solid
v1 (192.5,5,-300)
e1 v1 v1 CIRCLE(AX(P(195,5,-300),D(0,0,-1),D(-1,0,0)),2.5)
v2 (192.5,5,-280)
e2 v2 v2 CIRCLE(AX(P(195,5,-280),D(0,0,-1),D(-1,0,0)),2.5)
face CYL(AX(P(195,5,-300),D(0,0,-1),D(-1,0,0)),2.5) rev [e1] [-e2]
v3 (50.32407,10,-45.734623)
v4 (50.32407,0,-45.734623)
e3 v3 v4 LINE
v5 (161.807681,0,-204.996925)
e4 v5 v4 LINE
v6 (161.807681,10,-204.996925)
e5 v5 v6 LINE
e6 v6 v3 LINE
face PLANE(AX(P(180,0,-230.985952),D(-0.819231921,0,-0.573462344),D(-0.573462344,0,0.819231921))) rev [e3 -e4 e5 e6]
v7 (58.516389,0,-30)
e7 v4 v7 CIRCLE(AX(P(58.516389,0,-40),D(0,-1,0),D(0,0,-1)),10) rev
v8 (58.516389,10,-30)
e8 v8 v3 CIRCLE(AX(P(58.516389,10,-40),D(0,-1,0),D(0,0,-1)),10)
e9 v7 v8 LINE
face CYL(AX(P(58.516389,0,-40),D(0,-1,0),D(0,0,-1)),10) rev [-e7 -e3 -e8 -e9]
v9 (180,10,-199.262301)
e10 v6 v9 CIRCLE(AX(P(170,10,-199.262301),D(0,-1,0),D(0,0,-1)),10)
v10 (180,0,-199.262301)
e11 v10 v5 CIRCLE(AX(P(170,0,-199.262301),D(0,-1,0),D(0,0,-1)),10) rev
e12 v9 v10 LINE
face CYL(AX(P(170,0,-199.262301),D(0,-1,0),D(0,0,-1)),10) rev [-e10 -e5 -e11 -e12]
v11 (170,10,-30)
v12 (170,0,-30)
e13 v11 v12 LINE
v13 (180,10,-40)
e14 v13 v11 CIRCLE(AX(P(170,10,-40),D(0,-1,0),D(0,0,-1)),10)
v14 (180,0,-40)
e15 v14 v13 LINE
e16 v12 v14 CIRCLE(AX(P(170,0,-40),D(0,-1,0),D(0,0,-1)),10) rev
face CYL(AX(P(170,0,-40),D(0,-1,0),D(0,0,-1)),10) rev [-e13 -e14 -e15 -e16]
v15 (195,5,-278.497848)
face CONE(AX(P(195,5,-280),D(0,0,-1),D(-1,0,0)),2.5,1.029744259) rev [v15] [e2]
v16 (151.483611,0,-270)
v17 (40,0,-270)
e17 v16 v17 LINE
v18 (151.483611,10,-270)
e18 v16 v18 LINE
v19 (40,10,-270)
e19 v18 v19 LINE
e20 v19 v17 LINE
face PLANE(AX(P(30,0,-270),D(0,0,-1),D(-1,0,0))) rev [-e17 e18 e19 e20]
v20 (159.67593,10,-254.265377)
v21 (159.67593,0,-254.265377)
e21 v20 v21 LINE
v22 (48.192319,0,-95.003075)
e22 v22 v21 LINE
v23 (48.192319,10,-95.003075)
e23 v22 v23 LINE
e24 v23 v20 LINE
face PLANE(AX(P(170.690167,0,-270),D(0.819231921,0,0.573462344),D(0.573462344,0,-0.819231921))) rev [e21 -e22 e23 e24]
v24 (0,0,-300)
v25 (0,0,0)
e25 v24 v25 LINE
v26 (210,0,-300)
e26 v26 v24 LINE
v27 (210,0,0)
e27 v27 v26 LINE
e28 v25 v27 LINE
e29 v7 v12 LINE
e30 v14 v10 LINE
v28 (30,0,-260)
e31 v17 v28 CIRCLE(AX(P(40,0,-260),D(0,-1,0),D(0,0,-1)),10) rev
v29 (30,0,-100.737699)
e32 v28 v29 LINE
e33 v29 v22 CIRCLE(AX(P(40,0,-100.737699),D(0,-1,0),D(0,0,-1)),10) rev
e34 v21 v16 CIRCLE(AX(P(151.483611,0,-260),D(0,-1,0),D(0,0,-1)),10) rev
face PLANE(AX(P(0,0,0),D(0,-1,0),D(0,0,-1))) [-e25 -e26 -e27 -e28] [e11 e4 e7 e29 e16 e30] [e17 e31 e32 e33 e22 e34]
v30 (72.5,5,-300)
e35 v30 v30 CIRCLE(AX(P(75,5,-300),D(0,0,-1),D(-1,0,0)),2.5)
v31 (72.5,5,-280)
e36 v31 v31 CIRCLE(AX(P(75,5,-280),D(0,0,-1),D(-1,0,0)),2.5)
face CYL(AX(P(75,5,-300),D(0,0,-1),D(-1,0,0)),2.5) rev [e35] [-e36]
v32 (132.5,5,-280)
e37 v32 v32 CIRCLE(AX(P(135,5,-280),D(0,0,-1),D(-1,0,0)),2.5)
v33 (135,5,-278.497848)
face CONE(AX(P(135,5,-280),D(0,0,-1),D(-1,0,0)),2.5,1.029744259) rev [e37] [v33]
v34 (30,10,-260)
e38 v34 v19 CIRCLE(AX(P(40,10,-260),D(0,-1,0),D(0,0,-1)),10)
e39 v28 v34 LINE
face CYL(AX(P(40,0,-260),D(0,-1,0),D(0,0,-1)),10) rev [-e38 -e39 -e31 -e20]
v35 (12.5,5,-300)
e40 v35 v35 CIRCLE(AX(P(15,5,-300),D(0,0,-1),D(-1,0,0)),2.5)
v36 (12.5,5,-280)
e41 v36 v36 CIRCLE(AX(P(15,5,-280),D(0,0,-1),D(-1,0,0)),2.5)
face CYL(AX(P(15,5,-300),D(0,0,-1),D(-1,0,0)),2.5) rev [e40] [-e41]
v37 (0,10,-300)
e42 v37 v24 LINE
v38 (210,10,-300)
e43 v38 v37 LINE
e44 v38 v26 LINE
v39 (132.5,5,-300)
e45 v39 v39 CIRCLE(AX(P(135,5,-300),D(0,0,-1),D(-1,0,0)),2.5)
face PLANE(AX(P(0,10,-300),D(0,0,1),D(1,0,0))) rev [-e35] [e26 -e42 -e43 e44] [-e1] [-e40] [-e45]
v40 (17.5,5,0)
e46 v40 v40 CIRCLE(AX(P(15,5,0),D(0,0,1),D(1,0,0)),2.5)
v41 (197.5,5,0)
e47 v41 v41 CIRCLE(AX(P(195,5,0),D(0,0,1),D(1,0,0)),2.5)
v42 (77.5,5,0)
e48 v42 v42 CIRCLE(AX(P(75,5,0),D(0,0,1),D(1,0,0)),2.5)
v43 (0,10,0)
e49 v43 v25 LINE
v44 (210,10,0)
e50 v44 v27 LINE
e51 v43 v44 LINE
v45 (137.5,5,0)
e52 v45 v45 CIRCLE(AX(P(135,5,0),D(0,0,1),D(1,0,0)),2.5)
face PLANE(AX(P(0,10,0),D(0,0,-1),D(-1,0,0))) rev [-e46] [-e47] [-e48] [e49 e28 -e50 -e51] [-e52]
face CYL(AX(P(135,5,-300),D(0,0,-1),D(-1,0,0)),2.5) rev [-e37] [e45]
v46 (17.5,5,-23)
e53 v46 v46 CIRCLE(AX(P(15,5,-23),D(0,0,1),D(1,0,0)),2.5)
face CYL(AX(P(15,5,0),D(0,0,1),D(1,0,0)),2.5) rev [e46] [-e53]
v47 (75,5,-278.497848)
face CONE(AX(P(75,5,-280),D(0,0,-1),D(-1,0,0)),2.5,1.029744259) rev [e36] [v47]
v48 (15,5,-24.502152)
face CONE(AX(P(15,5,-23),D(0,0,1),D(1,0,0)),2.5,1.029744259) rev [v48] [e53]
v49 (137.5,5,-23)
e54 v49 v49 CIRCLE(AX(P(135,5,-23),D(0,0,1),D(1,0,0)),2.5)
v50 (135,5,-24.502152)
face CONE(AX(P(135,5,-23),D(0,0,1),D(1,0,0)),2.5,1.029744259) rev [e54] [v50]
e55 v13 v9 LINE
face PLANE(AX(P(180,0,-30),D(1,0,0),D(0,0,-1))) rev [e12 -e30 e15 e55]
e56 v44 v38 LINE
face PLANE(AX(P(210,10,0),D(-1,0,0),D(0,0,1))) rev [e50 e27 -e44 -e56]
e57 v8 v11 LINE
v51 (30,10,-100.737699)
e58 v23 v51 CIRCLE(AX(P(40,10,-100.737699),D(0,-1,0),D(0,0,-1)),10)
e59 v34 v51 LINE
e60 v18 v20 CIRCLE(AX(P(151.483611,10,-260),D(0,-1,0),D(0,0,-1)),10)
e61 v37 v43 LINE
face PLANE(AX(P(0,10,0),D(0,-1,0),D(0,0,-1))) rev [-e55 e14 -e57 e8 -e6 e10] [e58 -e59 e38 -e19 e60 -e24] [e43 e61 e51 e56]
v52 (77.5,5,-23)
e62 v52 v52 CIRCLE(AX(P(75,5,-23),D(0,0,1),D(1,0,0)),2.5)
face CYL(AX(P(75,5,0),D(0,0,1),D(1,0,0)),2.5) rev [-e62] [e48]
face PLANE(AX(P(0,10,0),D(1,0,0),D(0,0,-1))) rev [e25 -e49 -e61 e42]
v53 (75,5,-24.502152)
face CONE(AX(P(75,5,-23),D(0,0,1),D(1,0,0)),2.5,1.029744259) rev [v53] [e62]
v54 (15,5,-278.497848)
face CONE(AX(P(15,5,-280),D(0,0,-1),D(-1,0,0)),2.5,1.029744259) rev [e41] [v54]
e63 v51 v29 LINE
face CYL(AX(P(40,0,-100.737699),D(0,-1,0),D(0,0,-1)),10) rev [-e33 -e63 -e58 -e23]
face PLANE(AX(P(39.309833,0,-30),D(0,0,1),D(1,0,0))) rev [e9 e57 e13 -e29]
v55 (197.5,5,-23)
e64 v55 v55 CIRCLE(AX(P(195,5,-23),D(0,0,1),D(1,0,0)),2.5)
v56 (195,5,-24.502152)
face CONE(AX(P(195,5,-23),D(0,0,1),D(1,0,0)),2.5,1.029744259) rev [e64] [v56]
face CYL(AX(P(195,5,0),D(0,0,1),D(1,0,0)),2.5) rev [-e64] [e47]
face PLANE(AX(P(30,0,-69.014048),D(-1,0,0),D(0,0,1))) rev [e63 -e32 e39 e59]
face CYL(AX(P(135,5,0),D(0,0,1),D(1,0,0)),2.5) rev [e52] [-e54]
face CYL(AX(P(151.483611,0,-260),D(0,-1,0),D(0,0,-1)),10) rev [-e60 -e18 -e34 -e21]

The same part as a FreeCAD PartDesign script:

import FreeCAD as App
import Part
import Sketcher
from FreeCAD import Vector
Q = App.Units.Quantity


def edges_at(feature, points):
    """Names of the edges that pass closest to the given points."""
    edges = feature.Shape.Edges
    near = lambda p: min(range(len(edges)), key=lambda i: edges[i].distToShape(Part.Vertex(*p))[0])
    return sorted({f"Edge{near(p) + 1}" for p in points})


def add_polygon(sketch, points):
    """Adds a closed chain of lines whose ends are joined by coincident constraints."""
    first, n = sketch.GeometryCount, len(points)
    for a, b in zip(points, points[1:] + points[:1]):
        sketch.addGeometry(Part.LineSegment(App.Vector(*a, 0), App.Vector(*b, 0)), False)
    for i in range(n):
        sketch.addConstraint(Sketcher.Constraint("Coincident", first + i, 2, first + (i + 1) % n, 1))

doc = App.newDocument("Part")
body = doc.addObject("PartDesign::Body", "Body")

sketch1 = body.newObject("Sketcher::SketchObject", "Sketch")
sketch1.AttachmentSupport = (doc.getObject("XZ_Plane"), [""])
sketch1.MapMode = "FlatFace"
add_polygon(sketch1, [(0, -300), (0, 0), (210, 0), (210, -300)])
sketch1.addConstraint([
    Sketcher.Constraint("Vertical", 0),
    Sketcher.Constraint("Horizontal", 1),
    Sketcher.Constraint("Vertical", 2),
    Sketcher.Constraint("Horizontal", 3),
    Sketcher.Constraint("Coincident", 0, 2, -1, 1),
    Sketcher.Constraint("DistanceX", 1, 1, 1, 2, Q("210 mm")),
    Sketcher.Constraint("DistanceY", 0, 1, 0, 2, Q("300 mm")),
])
pad1 = body.newObject("PartDesign::Pad", "Pad")
pad1.Profile = sketch1
pad1.Length = 10
pad1.Reversed = True

sketch2 = body.newObject("Sketcher::SketchObject", "Sketch001")
sketch2.AttachmentSupport = (doc.getObject("XZ_Plane"), [""])
sketch2.MapMode = "FlatFace"
sketch2.AttachmentOffset = App.Placement(Vector(0, 0, -10), App.Rotation())
add_polygon(sketch2, [(39, -30), (180, -30), (180, -231)])
sketch2.addConstraint([
    Sketcher.Constraint("Horizontal", 0),
    Sketcher.Constraint("Vertical", 1),
    Sketcher.Constraint("DistanceX", -1, 1, 0, 2, Q("180 mm")),
    Sketcher.Constraint("DistanceY", 0, 2, -1, 1, Q("30 mm")),
    Sketcher.Constraint("Distance", 2, Q("245.33462 mm")),
    Sketcher.Constraint("DistanceX", 0, 1, 0, 2, Q("140.690167 mm")),
])
pocket1 = body.newObject("PartDesign::Pocket", "Pocket")
pocket1.Profile = sketch2
pocket1.Type = "ThroughAll"
pocket1.Reversed = True

sketch3 = body.newObject("Sketcher::SketchObject", "Sketch002")
sketch3.AttachmentSupport = (doc.getObject("XZ_Plane"), [""])
sketch3.MapMode = "FlatFace"
sketch3.AttachmentOffset = App.Placement(Vector(0, 0, -10), App.Rotation())
add_polygon(sketch3, [(30, -270), (30, -69), (171, -270)])
sketch3.addConstraint([
    Sketcher.Constraint("Vertical", 0),
    Sketcher.Constraint("Horizontal", 2),
    Sketcher.Constraint("DistanceX", -1, 1, 0, 2, Q("30 mm")),
    Sketcher.Constraint("DistanceY", 1, 2, -1, 1, Q("270 mm")),
    Sketcher.Constraint("Distance", 1, Q("245.33462 mm")),
    Sketcher.Constraint("DistanceX", 2, 2, 2, 1, Q("140.690167 mm")),
])
pocket2 = body.newObject("PartDesign::Pocket", "Pocket001")
pocket2.Profile = sketch3
pocket2.Type = "ThroughAll"
pocket2.Reversed = True
doc.recompute()

fillet = body.newObject("PartDesign::Fillet", "Fillet")
fillet.Base = (pocket2, edges_at(pocket2, [
    (39.31, 5, -30),
    (180, 5, -230.986),
    (180, 5, -30),
    (170.69, 5, -270),
    (30, 5, -69.014),
    (30, 5, -270),
]))
fillet.Radius = 10

sketch4 = body.newObject("Sketcher::SketchObject", "Sketch003")
sketch4.AttachmentSupport = (doc.getObject("XY_Plane"), [""])
sketch4.MapMode = "FlatFace"
sketch4.addGeometry([
    Part.Circle(Vector(15, 5, 0), Vector(0, 0, 1), 2.5),
    Part.Circle(Vector(135, 5, 0), Vector(0, 0, 1), 2.5),
    Part.Circle(Vector(195, 5, 0), Vector(0, 0, 1), 2.5),
    Part.Circle(Vector(75, 5, 0), Vector(0, 0, 1), 2.5),
], False)
sketch4.addConstraint([
    Sketcher.Constraint("Equal", 0, 1),
    Sketcher.Constraint("Equal", 1, 2),
    Sketcher.Constraint("Equal", 2, 3),
    Sketcher.Constraint("Horizontal", 0, 3, 1, 3),
    Sketcher.Constraint("Horizontal", 1, 3, 2, 3),
    Sketcher.Constraint("Horizontal", 2, 3, 3, 3),
    Sketcher.Constraint("Diameter", 0, Q("5 mm")),
    Sketcher.Constraint("DistanceX", -1, 1, 0, 3, Q("15 mm")),
    Sketcher.Constraint("DistanceY", -1, 1, 0, 3, Q("5 mm")),
    Sketcher.Constraint("DistanceX", -1, 1, 1, 3, Q("135 mm")),
    Sketcher.Constraint("DistanceX", -1, 1, 2, 3, Q("195 mm")),
    Sketcher.Constraint("DistanceX", -1, 1, 3, 3, Q("75 mm")),
])
doc.recompute()
hole = body.newObject("PartDesign::Hole", "Hole")
hole.Profile = sketch4
hole.ThreadType = "None"
hole.Diameter = 5
hole.DepthType = "Dimension"
hole.Depth = 23
hole.DrillPoint = "Angled"
hole.DrillPointAngle = 118

sketch5 = body.newObject("Sketcher::SketchObject", "Sketch004")
sketch5.AttachmentSupport = (doc.getObject("XY_Plane"), [""])
sketch5.MapMode = "FlatFace"
sketch5.AttachmentOffset = App.Placement(Vector(0, 0, -300), App.Rotation())
sketch5.addGeometry([
    Part.Circle(Vector(195, 5, 0), Vector(0, 0, 1), 2.5),
    Part.Circle(Vector(15, 5, 0), Vector(0, 0, 1), 2.5),
    Part.Circle(Vector(135, 5, 0), Vector(0, 0, 1), 2.5),
    Part.Circle(Vector(75, 5, 0), Vector(0, 0, 1), 2.5),
], False)
sketch5.addConstraint([
    Sketcher.Constraint("Equal", 0, 1),
    Sketcher.Constraint("Equal", 1, 2),
    Sketcher.Constraint("Equal", 2, 3),
    Sketcher.Constraint("Horizontal", 0, 3, 1, 3),
    Sketcher.Constraint("Horizontal", 1, 3, 2, 3),
    Sketcher.Constraint("Horizontal", 2, 3, 3, 3),
    Sketcher.Constraint("Diameter", 0, Q("5 mm")),
    Sketcher.Constraint("DistanceX", -1, 1, 0, 3, Q("195 mm")),
    Sketcher.Constraint("DistanceY", -1, 1, 0, 3, Q("5 mm")),
    Sketcher.Constraint("DistanceX", -1, 1, 1, 3, Q("15 mm")),
    Sketcher.Constraint("DistanceX", -1, 1, 2, 3, Q("135 mm")),
    Sketcher.Constraint("DistanceX", -1, 1, 3, 3, Q("75 mm")),
])
doc.recompute()
hole2 = body.newObject("PartDesign::Hole", "Hole001")
hole2.Profile = sketch5
hole2.ThreadType = "None"
hole2.Diameter = 5
hole2.DepthType = "Dimension"
hole2.Depth = 20
hole2.DrillPoint = "Angled"
hole2.DrillPointAngle = 118
hole2.Reversed = True

doc.recompute()
